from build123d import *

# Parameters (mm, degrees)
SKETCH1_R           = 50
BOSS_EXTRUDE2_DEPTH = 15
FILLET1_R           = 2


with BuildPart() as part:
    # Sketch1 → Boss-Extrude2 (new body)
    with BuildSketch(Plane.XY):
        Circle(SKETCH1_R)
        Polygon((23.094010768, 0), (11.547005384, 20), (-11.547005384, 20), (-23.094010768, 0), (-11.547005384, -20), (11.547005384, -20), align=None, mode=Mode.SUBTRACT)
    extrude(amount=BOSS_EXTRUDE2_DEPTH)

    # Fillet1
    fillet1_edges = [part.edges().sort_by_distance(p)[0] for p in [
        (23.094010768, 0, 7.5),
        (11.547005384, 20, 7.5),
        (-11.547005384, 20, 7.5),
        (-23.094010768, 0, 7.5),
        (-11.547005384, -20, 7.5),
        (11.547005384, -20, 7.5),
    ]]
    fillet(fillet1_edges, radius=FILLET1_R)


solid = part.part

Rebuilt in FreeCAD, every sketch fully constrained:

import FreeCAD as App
import Part
import Sketcher
from FreeCAD import Vector
Q = App.Units.Quantity


def edges_at(feature, points):
    """Names of the edges that pass closest to the given points."""
    edges = feature.Shape.Edges
    near = lambda p: min(range(len(edges)), key=lambda i: edges[i].distToShape(Part.Vertex(*p))[0])
    return sorted({f"Edge{near(p) + 1}" for p in points})

doc = App.newDocument("Part")
body = doc.addObject("PartDesign::Body", "Body")

# Sketch on XY plane
sketch1 = doc.addObject("Sketcher::SketchObject", "Sketch")
body.addObject(sketch1)
sketch1.AttachmentSupport = (doc.XY_Plane, [""])
sketch1.MapMode = "FlatFace"
sketch1.addGeometry(Part.Circle(Vector(0, 0, 0), Vector(0, 0, 1), 50), False)
sketch1.addGeometry(Part.LineSegment(Vector(12, 20, 0), Vector(23, 0, 0)), False)
sketch1.addGeometry(Part.LineSegment(Vector(23, 0, 0), Vector(12, -20, 0)), False)
sketch1.addGeometry(Part.LineSegment(Vector(12, -20, 0), Vector(-12, -20, 0)), False)
sketch1.addGeometry(Part.LineSegment(Vector(-12, -20, 0), Vector(-23, 0, 0)), False)
sketch1.addGeometry(Part.LineSegment(Vector(-23, 0, 0), Vector(-12, 20, 0)), False)
sketch1.addGeometry(Part.LineSegment(Vector(-12, 20, 0), Vector(12, 20, 0)), False)
sketch1.addConstraint(Sketcher.Constraint("Coincident", 1, 2, 2, 1))
sketch1.addConstraint(Sketcher.Constraint("Coincident", 2, 2, 3, 1))
sketch1.addConstraint(Sketcher.Constraint("Coincident", 3, 2, 4, 1))
sketch1.addConstraint(Sketcher.Constraint("Coincident", 4, 2, 5, 1))
sketch1.addConstraint(Sketcher.Constraint("Coincident", 5, 2, 6, 1))
sketch1.addConstraint(Sketcher.Constraint("Coincident", 6, 2, 1, 1))
sketch1.addConstraint(Sketcher.Constraint("Horizontal", 3))
sketch1.addConstraint(Sketcher.Constraint("Horizontal", 6))
sketch1.addConstraint(Sketcher.Constraint("Coincident", 0, 3, -1, 1))
sketch1.addConstraint(Sketcher.Constraint("Symmetric", 1, 2, 4, 2, -1, 1))
sketch1.addConstraint(Sketcher.Constraint("Symmetric", 2, 2, 5, 2, -1, 1))
sketch1.addConstraint(Sketcher.Constraint("PointOnObject", 1, 2, -1))
sketch1.addConstraint(Sketcher.Constraint("Parallel", 1, 4))
sketch1.addConstraint(Sketcher.Constraint("Vertical", 3, 2, 5, 2))
sketch1.addConstraint(Sketcher.Constraint("Diameter", 0, 100.0))
sketch1.addConstraint(Sketcher.Constraint("Angle", 1, Q("-60 deg")))
sketch1.addConstraint(Sketcher.Constraint("DistanceY", 2, 2, -1, 1, 20.0))
sketch1.addConstraint(Sketcher.Constraint("DistanceX", 3, 2, 3, 1, 23.094011))
pad1 = doc.addObject("PartDesign::Pad", "Pad")
body.addObject(pad1)
pad1.Profile = sketch1
pad1.Length = 15
doc.recompute()

fillet = doc.addObject("PartDesign::Fillet", "Fillet")
body.addObject(fillet)
fillet.Base = (pad1, edges_at(pad1, [
    (23.094, 0, 7.5),
    (11.547, 20, 7.5),
    (-11.547, 20, 7.5),
    (-23.094, 0, 7.5),
    (-11.547, -20, 7.5),
    (11.547, -20, 7.5),
]))
fillet.Radius = 2

doc.recompute()
